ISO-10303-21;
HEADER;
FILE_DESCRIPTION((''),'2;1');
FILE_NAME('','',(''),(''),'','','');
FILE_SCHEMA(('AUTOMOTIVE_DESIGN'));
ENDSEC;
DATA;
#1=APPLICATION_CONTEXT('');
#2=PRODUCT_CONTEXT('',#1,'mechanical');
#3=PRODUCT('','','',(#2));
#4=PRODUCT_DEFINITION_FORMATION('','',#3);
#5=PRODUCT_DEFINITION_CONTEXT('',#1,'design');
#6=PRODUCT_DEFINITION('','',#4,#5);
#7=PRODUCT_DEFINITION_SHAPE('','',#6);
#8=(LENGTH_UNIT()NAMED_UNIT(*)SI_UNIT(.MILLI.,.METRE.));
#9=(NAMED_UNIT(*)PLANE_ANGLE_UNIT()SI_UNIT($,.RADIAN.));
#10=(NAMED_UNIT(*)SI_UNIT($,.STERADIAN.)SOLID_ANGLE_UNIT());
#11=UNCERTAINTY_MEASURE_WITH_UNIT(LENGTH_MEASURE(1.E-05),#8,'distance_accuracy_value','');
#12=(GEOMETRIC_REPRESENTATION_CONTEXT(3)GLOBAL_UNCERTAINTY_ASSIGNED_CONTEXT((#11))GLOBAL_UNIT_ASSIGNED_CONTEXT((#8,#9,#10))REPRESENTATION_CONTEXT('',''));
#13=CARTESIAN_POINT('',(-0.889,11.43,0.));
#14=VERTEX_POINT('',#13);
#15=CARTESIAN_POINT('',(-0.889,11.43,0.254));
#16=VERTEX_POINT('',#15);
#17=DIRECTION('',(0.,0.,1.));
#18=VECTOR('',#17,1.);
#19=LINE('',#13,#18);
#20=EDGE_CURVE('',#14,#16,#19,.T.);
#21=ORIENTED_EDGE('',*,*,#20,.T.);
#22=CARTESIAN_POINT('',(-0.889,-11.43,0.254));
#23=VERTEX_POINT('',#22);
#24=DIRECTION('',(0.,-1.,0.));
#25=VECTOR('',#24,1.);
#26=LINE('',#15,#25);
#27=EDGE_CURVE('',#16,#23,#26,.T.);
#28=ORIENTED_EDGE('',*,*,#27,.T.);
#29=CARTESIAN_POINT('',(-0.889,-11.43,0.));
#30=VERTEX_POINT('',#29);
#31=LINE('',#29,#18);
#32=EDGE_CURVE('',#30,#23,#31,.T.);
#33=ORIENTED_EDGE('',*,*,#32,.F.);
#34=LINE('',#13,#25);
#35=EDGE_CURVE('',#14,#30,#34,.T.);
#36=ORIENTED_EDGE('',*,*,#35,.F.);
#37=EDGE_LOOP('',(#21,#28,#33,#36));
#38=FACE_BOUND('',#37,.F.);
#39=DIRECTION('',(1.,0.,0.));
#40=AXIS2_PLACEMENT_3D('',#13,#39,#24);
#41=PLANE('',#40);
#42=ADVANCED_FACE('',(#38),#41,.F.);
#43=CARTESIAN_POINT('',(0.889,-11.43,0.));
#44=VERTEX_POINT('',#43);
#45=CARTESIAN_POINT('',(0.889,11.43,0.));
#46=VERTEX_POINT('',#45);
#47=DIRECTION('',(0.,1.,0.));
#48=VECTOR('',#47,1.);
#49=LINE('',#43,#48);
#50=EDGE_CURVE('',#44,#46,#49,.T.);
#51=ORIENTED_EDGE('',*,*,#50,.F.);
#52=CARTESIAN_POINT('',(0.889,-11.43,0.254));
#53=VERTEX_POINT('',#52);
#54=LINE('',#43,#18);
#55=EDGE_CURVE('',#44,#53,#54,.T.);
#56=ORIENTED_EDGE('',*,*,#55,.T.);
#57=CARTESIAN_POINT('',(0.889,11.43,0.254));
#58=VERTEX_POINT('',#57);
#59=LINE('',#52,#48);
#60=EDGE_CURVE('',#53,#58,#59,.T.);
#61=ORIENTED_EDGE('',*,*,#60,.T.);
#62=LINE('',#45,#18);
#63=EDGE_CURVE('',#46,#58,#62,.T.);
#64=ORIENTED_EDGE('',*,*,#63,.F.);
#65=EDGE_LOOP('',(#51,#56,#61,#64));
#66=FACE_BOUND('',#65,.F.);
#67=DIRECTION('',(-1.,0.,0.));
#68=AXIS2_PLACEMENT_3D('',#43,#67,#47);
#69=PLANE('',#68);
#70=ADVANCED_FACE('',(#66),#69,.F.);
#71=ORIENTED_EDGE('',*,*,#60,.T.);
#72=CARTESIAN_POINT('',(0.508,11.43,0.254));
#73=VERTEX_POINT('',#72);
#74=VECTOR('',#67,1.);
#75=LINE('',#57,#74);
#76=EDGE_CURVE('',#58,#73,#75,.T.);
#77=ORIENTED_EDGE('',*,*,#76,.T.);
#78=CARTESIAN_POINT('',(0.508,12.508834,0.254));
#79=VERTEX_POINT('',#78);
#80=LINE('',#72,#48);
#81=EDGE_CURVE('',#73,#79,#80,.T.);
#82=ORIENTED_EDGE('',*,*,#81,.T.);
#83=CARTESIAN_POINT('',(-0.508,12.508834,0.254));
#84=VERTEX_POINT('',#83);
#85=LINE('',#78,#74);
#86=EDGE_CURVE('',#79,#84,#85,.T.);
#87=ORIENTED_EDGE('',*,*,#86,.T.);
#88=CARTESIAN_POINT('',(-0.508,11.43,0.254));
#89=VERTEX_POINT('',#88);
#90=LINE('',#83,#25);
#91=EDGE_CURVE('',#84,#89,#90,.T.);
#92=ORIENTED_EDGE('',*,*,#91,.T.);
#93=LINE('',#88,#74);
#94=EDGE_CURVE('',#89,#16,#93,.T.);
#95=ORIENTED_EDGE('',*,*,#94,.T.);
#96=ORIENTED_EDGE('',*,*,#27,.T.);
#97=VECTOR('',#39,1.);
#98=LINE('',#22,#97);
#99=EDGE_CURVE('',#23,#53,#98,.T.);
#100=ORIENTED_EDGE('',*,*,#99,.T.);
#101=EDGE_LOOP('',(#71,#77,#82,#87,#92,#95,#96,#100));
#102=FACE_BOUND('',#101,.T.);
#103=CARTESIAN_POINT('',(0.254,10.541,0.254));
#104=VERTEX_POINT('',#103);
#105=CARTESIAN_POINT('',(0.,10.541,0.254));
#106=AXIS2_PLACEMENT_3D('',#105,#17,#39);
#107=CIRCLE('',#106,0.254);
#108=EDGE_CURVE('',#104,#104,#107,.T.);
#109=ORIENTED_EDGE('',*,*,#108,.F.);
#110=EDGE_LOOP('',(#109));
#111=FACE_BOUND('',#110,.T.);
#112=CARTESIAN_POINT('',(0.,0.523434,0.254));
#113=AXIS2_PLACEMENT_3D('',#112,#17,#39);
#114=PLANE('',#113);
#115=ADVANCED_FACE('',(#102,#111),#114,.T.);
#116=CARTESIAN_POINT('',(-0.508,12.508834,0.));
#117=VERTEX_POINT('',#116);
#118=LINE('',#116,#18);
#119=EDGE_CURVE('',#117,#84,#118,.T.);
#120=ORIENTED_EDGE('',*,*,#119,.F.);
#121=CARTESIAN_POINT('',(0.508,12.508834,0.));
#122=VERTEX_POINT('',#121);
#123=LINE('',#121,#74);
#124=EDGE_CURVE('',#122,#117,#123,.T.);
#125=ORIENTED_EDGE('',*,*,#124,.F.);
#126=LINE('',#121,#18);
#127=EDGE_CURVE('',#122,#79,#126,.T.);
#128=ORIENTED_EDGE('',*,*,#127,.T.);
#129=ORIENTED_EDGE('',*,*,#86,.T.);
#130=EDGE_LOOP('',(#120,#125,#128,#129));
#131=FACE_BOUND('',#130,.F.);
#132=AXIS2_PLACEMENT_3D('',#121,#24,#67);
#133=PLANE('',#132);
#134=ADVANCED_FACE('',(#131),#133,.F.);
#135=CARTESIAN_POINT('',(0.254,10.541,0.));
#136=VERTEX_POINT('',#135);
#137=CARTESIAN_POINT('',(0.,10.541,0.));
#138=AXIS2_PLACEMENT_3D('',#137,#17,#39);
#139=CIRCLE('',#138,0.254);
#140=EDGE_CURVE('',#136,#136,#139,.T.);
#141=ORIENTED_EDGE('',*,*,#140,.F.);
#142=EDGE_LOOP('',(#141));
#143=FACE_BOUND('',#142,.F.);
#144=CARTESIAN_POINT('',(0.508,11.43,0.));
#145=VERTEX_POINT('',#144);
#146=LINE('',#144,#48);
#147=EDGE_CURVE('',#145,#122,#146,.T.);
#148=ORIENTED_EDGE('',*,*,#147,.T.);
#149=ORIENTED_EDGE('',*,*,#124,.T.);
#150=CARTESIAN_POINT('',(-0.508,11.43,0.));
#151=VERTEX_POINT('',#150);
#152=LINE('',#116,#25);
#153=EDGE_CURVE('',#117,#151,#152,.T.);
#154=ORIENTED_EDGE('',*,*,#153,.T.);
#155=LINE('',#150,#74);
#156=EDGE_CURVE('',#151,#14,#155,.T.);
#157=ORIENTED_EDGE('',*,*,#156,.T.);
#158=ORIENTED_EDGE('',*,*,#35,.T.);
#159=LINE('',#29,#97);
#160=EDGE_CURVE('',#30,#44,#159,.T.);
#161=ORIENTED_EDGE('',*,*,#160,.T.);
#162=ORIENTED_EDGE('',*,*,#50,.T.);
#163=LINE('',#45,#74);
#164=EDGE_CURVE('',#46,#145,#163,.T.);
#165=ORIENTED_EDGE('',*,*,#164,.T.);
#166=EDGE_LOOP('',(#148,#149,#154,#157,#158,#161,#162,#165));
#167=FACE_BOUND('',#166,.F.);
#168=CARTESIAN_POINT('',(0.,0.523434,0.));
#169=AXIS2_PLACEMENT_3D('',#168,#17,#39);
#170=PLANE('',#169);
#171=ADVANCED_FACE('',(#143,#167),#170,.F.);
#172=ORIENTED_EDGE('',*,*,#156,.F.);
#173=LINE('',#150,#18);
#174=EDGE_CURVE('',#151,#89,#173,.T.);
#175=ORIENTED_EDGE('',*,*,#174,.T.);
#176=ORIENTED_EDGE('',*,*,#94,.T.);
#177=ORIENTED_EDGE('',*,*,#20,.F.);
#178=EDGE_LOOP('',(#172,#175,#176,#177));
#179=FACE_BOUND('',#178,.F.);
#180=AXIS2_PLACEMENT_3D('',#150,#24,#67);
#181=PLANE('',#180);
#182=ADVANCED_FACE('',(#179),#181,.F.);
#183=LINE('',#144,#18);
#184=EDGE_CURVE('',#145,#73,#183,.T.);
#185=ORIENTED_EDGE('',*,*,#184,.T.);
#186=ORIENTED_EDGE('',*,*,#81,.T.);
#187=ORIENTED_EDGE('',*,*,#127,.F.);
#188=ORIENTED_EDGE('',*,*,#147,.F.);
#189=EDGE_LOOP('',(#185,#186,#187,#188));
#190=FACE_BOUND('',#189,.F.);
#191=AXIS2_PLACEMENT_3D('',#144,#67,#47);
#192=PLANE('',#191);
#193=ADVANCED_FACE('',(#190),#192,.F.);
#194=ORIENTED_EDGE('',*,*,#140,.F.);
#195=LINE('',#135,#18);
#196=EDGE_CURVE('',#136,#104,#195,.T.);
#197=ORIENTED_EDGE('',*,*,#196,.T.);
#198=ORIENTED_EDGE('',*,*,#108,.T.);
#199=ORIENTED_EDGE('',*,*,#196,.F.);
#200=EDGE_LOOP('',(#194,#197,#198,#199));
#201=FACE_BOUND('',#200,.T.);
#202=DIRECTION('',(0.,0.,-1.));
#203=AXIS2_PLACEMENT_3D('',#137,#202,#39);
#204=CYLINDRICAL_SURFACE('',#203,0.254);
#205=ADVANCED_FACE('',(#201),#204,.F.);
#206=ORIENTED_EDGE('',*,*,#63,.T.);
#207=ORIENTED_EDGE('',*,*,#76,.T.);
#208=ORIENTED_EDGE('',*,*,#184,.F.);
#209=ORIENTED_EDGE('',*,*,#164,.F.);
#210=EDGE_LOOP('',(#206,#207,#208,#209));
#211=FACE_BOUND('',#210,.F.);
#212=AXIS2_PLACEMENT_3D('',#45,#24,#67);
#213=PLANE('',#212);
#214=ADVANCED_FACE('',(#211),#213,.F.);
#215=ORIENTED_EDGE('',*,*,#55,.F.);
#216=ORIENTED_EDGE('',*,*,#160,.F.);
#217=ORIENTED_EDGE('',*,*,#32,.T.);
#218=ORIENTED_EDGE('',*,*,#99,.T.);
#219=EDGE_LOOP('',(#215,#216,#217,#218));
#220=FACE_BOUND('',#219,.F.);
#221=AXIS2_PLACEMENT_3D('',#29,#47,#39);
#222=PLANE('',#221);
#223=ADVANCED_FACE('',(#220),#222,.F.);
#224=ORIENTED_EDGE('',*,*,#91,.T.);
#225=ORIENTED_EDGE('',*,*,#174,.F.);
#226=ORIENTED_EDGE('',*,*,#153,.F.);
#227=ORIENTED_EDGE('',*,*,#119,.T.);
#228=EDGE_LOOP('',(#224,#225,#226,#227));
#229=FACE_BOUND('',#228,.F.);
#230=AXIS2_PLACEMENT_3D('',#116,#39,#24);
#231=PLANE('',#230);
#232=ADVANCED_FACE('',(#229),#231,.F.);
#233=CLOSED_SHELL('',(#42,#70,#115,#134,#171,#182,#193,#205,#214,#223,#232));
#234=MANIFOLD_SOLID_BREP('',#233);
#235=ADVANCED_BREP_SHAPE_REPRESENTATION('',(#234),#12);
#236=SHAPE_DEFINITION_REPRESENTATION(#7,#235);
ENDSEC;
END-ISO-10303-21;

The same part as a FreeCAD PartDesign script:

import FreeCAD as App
import Part
import Sketcher
from FreeCAD import Vector
Q = App.Units.Quantity

doc = App.newDocument("Part")
body = doc.addObject("PartDesign::Body", "Body")

sketch1 = body.newObject("Sketcher::SketchObject", "Sketch")
sketch1.AttachmentSupport = (doc.getObject("XY_Plane"), [""])
sketch1.MapMode = "FlatFace"
sketch1.addGeometry(Part.LineSegment(Vector(-0.89, -11.43, 0), Vector(0.89, -11.43, 0)), False)
sketch1.addGeometry(Part.LineSegment(Vector(0.89, -11.43, 0), Vector(0.89, 11.43, 0)), False)
sketch1.addGeometry(Part.LineSegment(Vector(0.89, 11.43, 0), Vector(0.51, 11.43, 0)), False)
sketch1.addGeometry(Part.LineSegment(Vector(0.51, 11.43, 0), Vector(0.51, 12.51, 0)), False)
sketch1.addGeometry(Part.LineSegment(Vector(0.51, 12.51, 0), Vector(-0.51, 12.51, 0)), False)
sketch1.addGeometry(Part.LineSegment(Vector(-0.51, 12.51, 0), Vector(-0.51, 11.43, 0)), False)
sketch1.addGeometry(Part.LineSegment(Vector(-0.51, 11.43, 0), Vector(-0.89, 11.43, 0)), False)
sketch1.addGeometry(Part.LineSegment(Vector(-0.89, 11.43, 0), Vector(-0.89, -11.43, 0)), False)
sketch1.addGeometry(Part.Circle(Vector(0, 10.54, 0), Vector(0, 0, 1), 0.25), False)
sketch1.addConstraint(Sketcher.Constraint("Coincident", 0, 2, 1, 1))
sketch1.addConstraint(Sketcher.Constraint("Coincident", 1, 2, 2, 1))
sketch1.addConstraint(Sketcher.Constraint("Coincident", 2, 2, 3, 1))
sketch1.addConstraint(Sketcher.Constraint("Coincident", 3, 2, 4, 1))
sketch1.addConstraint(Sketcher.Constraint("Coincident", 4, 2, 5, 1))
sketch1.addConstraint(Sketcher.Constraint("Coincident", 5, 2, 6, 1))
sketch1.addConstraint(Sketcher.Constraint("Coincident", 6, 2, 7, 1))
sketch1.addConstraint(Sketcher.Constraint("Coincident", 7, 2, 0, 1))
sketch1.addConstraint(Sketcher.Constraint("Horizontal", 0))
sketch1.addConstraint(Sketcher.Constraint("Vertical", 1))
sketch1.addConstraint(Sketcher.Constraint("Horizontal", 2))
sketch1.addConstraint(Sketcher.Constraint("Vertical", 3))
sketch1.addConstraint(Sketcher.Constraint("Horizontal", 4))
sketch1.addConstraint(Sketcher.Constraint("Vertical", 5))
sketch1.addConstraint(Sketcher.Constraint("Horizontal", 6))
sketch1.addConstraint(Sketcher.Constraint("Vertical", 7))
sketch1.addConstraint(Sketcher.Constraint("Symmetric", 0, 2, 6, 2, -1, 1))
sketch1.addConstraint(Sketcher.Constraint("Symmetric", 2, 2, 5, 2, -2))
sketch1.addConstraint(Sketcher.Constraint("PointOnObject", 8, 3, -2))
sketch1.addConstraint(Sketcher.Constraint("Diameter", 8, Q("0.02 in")))
sketch1.addConstraint(Sketcher.Constraint("DistanceY", 1, 1, 1, 2, Q("0.9 in")))
sketch1.addConstraint(Sketcher.Constraint("DistanceX", 0, 1, 0, 2, Q("0.07 in")))
sketch1.addConstraint(Sketcher.Constraint("DistanceX", 4, 2, 4, 1, Q("0.04 in")))
sketch1.addConstraint(Sketcher.Constraint("DistanceY", -1, 1, 8, 3, Q("0.415 in")))
sketch1.addConstraint(Sketcher.Constraint("DistanceY", 3, 1, 3, 2, 1.078834))
pad1 = body.newObject("PartDesign::Pad", "Pad")
pad1.Profile = sketch1
pad1.Length = Q("0.01 in")

doc.recompute()
